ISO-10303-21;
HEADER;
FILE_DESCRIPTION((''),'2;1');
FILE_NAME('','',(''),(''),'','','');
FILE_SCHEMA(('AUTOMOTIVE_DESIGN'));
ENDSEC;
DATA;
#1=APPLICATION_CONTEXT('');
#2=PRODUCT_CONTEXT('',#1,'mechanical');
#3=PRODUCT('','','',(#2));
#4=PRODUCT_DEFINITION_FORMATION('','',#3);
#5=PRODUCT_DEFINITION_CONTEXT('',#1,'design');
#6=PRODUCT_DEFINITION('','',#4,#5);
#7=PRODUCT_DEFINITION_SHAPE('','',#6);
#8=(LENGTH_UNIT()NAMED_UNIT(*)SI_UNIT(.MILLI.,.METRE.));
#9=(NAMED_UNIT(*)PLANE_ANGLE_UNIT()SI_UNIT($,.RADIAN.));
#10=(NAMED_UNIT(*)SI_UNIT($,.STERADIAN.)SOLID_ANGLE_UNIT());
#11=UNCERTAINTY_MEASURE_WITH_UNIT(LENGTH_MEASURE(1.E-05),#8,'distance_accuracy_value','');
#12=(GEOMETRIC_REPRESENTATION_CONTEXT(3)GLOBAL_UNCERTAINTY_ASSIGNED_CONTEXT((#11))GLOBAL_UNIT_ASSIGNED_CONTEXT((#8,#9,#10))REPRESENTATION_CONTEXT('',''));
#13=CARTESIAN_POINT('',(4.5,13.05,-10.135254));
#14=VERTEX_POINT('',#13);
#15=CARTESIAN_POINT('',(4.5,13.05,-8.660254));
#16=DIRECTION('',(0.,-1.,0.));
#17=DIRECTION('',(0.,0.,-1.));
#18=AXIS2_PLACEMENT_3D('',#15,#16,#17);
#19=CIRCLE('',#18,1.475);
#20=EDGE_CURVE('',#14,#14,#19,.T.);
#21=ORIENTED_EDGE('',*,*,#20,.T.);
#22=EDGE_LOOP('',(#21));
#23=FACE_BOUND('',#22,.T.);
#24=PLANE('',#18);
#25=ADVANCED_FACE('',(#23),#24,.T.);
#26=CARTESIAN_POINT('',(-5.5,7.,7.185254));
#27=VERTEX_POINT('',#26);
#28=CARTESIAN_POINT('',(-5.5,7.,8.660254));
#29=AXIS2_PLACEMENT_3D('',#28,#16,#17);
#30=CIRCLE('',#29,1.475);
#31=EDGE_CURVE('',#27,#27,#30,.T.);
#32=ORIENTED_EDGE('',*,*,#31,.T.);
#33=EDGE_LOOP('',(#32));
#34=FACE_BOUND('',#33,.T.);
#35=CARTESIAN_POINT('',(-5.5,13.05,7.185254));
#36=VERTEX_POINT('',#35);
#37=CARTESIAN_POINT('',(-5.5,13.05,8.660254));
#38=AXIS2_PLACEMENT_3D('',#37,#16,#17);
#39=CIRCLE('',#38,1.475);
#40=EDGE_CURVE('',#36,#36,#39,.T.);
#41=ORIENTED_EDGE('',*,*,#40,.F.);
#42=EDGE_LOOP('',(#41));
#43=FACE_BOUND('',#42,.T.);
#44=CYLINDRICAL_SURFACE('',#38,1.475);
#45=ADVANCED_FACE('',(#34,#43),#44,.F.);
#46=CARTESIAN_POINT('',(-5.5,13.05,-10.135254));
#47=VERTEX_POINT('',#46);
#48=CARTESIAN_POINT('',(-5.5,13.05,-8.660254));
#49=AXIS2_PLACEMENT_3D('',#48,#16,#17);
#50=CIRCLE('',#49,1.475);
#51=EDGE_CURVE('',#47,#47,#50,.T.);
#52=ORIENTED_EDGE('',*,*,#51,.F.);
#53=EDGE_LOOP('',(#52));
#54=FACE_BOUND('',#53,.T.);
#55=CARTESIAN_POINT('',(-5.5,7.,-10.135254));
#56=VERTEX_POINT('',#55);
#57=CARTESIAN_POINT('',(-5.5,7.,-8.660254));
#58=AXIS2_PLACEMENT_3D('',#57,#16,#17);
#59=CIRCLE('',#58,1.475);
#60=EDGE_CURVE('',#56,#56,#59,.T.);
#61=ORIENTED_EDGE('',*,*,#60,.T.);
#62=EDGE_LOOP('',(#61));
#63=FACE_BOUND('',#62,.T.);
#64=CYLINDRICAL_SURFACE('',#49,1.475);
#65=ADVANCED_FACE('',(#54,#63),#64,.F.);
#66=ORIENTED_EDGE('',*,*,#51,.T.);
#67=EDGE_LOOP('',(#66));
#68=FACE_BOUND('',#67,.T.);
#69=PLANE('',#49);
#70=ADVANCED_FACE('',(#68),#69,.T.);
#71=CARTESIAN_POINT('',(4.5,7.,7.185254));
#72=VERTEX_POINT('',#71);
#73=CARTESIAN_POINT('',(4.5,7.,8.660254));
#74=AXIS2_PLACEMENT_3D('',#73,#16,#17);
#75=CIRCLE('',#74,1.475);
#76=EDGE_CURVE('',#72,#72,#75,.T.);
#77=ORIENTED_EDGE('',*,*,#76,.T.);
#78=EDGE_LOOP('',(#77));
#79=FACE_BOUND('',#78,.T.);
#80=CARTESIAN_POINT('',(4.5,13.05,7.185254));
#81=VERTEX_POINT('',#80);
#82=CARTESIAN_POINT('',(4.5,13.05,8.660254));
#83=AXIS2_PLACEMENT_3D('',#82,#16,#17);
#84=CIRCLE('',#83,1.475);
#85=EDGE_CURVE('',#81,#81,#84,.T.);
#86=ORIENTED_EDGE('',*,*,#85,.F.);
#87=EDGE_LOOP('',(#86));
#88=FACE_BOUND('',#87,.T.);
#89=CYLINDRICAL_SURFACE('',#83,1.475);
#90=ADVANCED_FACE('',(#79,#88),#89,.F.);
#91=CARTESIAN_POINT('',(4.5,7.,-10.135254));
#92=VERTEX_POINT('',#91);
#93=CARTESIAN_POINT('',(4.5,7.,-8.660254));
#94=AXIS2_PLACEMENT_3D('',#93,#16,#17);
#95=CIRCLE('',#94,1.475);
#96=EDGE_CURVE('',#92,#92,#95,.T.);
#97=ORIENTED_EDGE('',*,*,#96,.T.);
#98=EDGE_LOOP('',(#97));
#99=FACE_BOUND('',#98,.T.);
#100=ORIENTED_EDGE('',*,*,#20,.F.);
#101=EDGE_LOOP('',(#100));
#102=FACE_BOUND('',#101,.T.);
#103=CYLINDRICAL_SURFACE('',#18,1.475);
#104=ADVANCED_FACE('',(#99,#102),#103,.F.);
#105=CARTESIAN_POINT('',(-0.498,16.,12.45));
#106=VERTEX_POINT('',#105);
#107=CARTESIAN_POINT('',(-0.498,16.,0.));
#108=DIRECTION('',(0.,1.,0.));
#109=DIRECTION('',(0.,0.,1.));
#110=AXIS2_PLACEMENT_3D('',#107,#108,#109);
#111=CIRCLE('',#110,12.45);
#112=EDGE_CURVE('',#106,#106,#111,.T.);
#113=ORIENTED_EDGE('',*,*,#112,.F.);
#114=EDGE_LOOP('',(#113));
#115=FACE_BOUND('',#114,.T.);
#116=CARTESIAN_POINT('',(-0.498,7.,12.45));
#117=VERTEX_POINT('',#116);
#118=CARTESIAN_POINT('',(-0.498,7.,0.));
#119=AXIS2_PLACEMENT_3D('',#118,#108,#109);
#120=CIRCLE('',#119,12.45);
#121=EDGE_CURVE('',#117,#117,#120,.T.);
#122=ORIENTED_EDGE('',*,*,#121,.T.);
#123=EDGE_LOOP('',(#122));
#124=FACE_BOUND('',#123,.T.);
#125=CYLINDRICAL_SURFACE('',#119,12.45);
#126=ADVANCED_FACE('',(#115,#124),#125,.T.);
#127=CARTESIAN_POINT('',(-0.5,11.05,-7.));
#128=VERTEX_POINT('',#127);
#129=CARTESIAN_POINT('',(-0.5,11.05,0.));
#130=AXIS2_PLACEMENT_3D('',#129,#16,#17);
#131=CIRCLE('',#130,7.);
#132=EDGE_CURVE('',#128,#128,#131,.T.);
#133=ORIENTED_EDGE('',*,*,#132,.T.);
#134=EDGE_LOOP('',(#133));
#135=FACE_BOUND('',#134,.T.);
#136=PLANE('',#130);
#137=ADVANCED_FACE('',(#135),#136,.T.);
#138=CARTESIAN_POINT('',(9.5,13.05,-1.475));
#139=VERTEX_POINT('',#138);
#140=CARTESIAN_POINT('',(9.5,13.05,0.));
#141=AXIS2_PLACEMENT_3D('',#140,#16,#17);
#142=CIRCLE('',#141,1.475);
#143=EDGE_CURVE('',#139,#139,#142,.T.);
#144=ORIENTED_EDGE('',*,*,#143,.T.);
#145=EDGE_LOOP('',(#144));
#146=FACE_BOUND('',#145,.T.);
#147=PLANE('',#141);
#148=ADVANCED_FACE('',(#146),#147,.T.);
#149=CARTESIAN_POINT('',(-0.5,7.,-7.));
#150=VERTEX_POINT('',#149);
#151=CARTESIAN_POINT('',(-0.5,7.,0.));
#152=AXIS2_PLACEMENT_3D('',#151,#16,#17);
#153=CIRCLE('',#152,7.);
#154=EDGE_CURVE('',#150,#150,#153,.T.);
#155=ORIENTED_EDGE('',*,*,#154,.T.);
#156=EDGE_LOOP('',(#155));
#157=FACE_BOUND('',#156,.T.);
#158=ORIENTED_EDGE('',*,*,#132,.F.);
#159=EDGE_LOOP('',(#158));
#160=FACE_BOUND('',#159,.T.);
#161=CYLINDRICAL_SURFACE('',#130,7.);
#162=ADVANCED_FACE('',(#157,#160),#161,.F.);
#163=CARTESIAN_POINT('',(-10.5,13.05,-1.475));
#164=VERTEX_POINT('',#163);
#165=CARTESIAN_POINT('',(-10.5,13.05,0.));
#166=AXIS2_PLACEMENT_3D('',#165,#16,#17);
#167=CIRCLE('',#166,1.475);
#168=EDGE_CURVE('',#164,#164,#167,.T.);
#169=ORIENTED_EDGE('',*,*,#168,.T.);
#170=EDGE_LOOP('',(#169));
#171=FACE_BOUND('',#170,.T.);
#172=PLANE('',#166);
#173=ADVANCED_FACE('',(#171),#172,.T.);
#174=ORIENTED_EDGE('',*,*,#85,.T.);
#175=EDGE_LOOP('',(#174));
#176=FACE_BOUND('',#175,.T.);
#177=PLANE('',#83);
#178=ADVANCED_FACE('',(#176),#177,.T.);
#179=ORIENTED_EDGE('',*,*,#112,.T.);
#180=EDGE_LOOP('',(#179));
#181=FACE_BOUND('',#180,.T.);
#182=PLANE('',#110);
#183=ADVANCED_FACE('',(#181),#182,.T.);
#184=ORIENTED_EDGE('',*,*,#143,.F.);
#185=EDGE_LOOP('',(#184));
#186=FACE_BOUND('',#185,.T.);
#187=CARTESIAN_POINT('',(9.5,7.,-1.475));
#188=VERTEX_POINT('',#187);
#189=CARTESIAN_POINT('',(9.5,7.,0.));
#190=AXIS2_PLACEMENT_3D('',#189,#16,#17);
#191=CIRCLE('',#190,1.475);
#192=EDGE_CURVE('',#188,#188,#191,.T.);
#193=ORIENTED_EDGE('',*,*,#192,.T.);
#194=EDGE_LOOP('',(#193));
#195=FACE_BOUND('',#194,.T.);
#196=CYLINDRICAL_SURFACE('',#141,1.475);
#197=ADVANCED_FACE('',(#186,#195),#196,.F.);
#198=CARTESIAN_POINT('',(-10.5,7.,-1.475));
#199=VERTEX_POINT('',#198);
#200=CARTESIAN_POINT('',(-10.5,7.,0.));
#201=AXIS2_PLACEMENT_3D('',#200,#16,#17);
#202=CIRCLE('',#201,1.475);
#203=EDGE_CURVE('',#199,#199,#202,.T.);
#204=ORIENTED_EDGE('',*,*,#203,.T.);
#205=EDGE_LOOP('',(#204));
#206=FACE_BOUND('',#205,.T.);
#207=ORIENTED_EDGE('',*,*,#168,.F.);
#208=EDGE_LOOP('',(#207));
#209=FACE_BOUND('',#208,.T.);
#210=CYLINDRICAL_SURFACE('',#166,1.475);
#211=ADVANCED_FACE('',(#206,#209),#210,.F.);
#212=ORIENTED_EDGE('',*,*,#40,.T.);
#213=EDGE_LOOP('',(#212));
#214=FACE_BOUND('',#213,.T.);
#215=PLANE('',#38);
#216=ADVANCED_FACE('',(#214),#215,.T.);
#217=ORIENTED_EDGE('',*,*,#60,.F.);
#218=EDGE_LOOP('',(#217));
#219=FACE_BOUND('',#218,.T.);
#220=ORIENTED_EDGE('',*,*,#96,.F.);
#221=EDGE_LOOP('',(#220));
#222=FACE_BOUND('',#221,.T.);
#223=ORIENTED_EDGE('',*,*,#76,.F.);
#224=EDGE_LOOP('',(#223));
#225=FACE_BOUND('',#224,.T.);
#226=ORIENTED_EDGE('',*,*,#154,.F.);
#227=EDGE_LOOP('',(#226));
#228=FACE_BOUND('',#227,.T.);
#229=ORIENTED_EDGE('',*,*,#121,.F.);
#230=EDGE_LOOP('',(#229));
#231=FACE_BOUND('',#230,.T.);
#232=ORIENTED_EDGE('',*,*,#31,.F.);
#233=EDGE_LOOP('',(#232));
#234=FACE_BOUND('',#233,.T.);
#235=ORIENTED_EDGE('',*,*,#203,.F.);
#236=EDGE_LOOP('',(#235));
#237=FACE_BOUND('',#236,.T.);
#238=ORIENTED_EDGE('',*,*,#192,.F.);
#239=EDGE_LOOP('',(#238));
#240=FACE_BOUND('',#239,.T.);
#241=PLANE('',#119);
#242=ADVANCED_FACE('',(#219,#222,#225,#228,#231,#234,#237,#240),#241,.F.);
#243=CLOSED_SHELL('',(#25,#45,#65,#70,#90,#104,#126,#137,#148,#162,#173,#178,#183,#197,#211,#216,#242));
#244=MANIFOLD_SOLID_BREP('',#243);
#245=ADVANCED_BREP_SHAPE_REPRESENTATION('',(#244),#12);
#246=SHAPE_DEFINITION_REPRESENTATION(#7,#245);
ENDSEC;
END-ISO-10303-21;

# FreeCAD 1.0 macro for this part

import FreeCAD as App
import Part
import Sketcher

V = App.Vector

doc = App.newDocument("Part")
params = doc.addObject("Spreadsheet::Sheet", "Params")
for row, (alias, value) in enumerate([
    ("sketch1_diameter", "24.9 mm"),
    ("pad1_length", "2 mm"),
    ("pad1_length2", "7 mm"),
    ("sketch2_diameter", "2.95 mm"),
    ("pocket1_length", "6.05 mm"),
    ("sketch3_diameter", "14 mm"),
    ("pocket2_length", "4.05 mm"),
], start=1):
    params.set(f"A{row}", alias)
    params.set(f"B{row}", "=" + value)
    params.setAlias(f"B{row}", alias)

body = doc.addObject("PartDesign::Body", "Body")

# Sketch on XZ plane
sketch1 = doc.addObject("Sketcher::SketchObject", "Sketch")
body.addObject(sketch1)
sketch1.AttachmentSupport = (doc.XZ_Plane, [""])
sketch1.MapMode = "FlatFace"
sketch1.AttachmentOffset = App.Placement(V(0, 0, -14), App.Rotation())
sketch1.addGeometry(Part.Circle(V(0, 0, 0), V(0, 0, 1), 12), False)
sketch1.addConstraint(Sketcher.Constraint("PointOnObject", 0, 3, -1))
sketch1.addConstraint(Sketcher.Constraint("Diameter", 0, 24.9))
sketch1.addConstraint(Sketcher.Constraint("DistanceX", 0, 3, -1, 1, 0.498))
sketch1.setExpression("Constraints[1]", "Params.sketch1_diameter")
pad1 = doc.addObject("PartDesign::Pad", "Pad")
body.addObject(pad1)
pad1.Profile = sketch1
pad1.Type = "TwoLengths"
pad1.setExpression("Length", "Params.pad1_length")
pad1.setExpression("Length2", "Params.pad1_length2")
pad1.Reversed = True

# Sketch on XZ plane
sketch2 = doc.addObject("Sketcher::SketchObject", "Sketch001")
body.addObject(sketch2)
sketch2.AttachmentSupport = (doc.XZ_Plane, [""])
sketch2.MapMode = "FlatFace"
sketch2.AttachmentOffset = App.Placement(V(0, 0, -7), App.Rotation())
sketch2.addGeometry(Part.Circle(V(9.5, 0, 0), V(0, 0, 1), 1.5), False)
sketch2.addGeometry(Part.Circle(V(4.5, -8.7, 0), V(0, 0, 1), 1.5), False)
sketch2.addGeometry(Part.Circle(V(-5.5, -8.7, 0), V(0, 0, 1), 1.5), False)
sketch2.addGeometry(Part.Circle(V(-10.5, 0, 0), V(0, 0, 1), 1.5), False)
sketch2.addGeometry(Part.Circle(V(-5.5, 8.7, 0), V(0, 0, 1), 1.5), False)
sketch2.addGeometry(Part.Circle(V(4.5, 8.7, 0), V(0, 0, 1), 1.5), False)
sketch2.addConstraint(Sketcher.Constraint("Equal", 0, 1))
sketch2.addConstraint(Sketcher.Constraint("Equal", 1, 2))
sketch2.addConstraint(Sketcher.Constraint("Equal", 2, 3))
sketch2.addConstraint(Sketcher.Constraint("Equal", 3, 4))
sketch2.addConstraint(Sketcher.Constraint("Equal", 4, 5))
sketch2.addConstraint(Sketcher.Constraint("Symmetric", 2, 3, 4, 3, -1))
sketch2.addConstraint(Sketcher.Constraint("Symmetric", 1, 3, 5, 3, -1))
sketch2.addConstraint(Sketcher.Constraint("PointOnObject", 0, 3, -1))
sketch2.addConstraint(Sketcher.Constraint("PointOnObject", 3, 3, -1))
sketch2.addConstraint(Sketcher.Constraint("Horizontal", 1, 3, 2, 3))
sketch2.addConstraint(Sketcher.Constraint("Diameter", 0, 2.95))
sketch2.addConstraint(Sketcher.Constraint("DistanceX", 1, 3, 0, 3, 5.0))
sketch2.addConstraint(Sketcher.Constraint("DistanceX", 2, 3, 1, 3, 10.0))
sketch2.addConstraint(Sketcher.Constraint("DistanceX", 3, 3, 2, 3, 5.0))
sketch2.addConstraint(Sketcher.Constraint("DistanceX", -1, 1, 0, 3, 9.5))
sketch2.addConstraint(Sketcher.Constraint("DistanceY", 2, 3, 4, 3, 17.320508))
sketch2.setExpression("Constraints[10]", "Params.sketch2_diameter")
pocket1 = doc.addObject("PartDesign::Pocket", "Pocket")
body.addObject(pocket1)
pocket1.Profile = sketch2
pocket1.setExpression("Length", "Params.pocket1_length")

# Sketch on XZ plane
sketch3 = doc.addObject("Sketcher::SketchObject", "Sketch002")
body.addObject(sketch3)
sketch3.AttachmentSupport = (doc.XZ_Plane, [""])
sketch3.MapMode = "FlatFace"
sketch3.AttachmentOffset = App.Placement(V(0, 0, -7), App.Rotation())
sketch3.addGeometry(Part.Circle(V(0, 0, 0), V(0, 0, 1), 7), False)
sketch3.addConstraint(Sketcher.Constraint("PointOnObject", 0, 3, -1))
sketch3.addConstraint(Sketcher.Constraint("Diameter", 0, 14.0))
sketch3.addConstraint(Sketcher.Constraint("DistanceX", 0, 3, -1, 1, 0.5))
sketch3.setExpression("Constraints[1]", "Params.sketch3_diameter")
pocket2 = doc.addObject("PartDesign::Pocket", "Pocket001")
body.addObject(pocket2)
pocket2.Profile = sketch3
pocket2.setExpression("Length", "Params.pocket2_length")

doc.recompute()
